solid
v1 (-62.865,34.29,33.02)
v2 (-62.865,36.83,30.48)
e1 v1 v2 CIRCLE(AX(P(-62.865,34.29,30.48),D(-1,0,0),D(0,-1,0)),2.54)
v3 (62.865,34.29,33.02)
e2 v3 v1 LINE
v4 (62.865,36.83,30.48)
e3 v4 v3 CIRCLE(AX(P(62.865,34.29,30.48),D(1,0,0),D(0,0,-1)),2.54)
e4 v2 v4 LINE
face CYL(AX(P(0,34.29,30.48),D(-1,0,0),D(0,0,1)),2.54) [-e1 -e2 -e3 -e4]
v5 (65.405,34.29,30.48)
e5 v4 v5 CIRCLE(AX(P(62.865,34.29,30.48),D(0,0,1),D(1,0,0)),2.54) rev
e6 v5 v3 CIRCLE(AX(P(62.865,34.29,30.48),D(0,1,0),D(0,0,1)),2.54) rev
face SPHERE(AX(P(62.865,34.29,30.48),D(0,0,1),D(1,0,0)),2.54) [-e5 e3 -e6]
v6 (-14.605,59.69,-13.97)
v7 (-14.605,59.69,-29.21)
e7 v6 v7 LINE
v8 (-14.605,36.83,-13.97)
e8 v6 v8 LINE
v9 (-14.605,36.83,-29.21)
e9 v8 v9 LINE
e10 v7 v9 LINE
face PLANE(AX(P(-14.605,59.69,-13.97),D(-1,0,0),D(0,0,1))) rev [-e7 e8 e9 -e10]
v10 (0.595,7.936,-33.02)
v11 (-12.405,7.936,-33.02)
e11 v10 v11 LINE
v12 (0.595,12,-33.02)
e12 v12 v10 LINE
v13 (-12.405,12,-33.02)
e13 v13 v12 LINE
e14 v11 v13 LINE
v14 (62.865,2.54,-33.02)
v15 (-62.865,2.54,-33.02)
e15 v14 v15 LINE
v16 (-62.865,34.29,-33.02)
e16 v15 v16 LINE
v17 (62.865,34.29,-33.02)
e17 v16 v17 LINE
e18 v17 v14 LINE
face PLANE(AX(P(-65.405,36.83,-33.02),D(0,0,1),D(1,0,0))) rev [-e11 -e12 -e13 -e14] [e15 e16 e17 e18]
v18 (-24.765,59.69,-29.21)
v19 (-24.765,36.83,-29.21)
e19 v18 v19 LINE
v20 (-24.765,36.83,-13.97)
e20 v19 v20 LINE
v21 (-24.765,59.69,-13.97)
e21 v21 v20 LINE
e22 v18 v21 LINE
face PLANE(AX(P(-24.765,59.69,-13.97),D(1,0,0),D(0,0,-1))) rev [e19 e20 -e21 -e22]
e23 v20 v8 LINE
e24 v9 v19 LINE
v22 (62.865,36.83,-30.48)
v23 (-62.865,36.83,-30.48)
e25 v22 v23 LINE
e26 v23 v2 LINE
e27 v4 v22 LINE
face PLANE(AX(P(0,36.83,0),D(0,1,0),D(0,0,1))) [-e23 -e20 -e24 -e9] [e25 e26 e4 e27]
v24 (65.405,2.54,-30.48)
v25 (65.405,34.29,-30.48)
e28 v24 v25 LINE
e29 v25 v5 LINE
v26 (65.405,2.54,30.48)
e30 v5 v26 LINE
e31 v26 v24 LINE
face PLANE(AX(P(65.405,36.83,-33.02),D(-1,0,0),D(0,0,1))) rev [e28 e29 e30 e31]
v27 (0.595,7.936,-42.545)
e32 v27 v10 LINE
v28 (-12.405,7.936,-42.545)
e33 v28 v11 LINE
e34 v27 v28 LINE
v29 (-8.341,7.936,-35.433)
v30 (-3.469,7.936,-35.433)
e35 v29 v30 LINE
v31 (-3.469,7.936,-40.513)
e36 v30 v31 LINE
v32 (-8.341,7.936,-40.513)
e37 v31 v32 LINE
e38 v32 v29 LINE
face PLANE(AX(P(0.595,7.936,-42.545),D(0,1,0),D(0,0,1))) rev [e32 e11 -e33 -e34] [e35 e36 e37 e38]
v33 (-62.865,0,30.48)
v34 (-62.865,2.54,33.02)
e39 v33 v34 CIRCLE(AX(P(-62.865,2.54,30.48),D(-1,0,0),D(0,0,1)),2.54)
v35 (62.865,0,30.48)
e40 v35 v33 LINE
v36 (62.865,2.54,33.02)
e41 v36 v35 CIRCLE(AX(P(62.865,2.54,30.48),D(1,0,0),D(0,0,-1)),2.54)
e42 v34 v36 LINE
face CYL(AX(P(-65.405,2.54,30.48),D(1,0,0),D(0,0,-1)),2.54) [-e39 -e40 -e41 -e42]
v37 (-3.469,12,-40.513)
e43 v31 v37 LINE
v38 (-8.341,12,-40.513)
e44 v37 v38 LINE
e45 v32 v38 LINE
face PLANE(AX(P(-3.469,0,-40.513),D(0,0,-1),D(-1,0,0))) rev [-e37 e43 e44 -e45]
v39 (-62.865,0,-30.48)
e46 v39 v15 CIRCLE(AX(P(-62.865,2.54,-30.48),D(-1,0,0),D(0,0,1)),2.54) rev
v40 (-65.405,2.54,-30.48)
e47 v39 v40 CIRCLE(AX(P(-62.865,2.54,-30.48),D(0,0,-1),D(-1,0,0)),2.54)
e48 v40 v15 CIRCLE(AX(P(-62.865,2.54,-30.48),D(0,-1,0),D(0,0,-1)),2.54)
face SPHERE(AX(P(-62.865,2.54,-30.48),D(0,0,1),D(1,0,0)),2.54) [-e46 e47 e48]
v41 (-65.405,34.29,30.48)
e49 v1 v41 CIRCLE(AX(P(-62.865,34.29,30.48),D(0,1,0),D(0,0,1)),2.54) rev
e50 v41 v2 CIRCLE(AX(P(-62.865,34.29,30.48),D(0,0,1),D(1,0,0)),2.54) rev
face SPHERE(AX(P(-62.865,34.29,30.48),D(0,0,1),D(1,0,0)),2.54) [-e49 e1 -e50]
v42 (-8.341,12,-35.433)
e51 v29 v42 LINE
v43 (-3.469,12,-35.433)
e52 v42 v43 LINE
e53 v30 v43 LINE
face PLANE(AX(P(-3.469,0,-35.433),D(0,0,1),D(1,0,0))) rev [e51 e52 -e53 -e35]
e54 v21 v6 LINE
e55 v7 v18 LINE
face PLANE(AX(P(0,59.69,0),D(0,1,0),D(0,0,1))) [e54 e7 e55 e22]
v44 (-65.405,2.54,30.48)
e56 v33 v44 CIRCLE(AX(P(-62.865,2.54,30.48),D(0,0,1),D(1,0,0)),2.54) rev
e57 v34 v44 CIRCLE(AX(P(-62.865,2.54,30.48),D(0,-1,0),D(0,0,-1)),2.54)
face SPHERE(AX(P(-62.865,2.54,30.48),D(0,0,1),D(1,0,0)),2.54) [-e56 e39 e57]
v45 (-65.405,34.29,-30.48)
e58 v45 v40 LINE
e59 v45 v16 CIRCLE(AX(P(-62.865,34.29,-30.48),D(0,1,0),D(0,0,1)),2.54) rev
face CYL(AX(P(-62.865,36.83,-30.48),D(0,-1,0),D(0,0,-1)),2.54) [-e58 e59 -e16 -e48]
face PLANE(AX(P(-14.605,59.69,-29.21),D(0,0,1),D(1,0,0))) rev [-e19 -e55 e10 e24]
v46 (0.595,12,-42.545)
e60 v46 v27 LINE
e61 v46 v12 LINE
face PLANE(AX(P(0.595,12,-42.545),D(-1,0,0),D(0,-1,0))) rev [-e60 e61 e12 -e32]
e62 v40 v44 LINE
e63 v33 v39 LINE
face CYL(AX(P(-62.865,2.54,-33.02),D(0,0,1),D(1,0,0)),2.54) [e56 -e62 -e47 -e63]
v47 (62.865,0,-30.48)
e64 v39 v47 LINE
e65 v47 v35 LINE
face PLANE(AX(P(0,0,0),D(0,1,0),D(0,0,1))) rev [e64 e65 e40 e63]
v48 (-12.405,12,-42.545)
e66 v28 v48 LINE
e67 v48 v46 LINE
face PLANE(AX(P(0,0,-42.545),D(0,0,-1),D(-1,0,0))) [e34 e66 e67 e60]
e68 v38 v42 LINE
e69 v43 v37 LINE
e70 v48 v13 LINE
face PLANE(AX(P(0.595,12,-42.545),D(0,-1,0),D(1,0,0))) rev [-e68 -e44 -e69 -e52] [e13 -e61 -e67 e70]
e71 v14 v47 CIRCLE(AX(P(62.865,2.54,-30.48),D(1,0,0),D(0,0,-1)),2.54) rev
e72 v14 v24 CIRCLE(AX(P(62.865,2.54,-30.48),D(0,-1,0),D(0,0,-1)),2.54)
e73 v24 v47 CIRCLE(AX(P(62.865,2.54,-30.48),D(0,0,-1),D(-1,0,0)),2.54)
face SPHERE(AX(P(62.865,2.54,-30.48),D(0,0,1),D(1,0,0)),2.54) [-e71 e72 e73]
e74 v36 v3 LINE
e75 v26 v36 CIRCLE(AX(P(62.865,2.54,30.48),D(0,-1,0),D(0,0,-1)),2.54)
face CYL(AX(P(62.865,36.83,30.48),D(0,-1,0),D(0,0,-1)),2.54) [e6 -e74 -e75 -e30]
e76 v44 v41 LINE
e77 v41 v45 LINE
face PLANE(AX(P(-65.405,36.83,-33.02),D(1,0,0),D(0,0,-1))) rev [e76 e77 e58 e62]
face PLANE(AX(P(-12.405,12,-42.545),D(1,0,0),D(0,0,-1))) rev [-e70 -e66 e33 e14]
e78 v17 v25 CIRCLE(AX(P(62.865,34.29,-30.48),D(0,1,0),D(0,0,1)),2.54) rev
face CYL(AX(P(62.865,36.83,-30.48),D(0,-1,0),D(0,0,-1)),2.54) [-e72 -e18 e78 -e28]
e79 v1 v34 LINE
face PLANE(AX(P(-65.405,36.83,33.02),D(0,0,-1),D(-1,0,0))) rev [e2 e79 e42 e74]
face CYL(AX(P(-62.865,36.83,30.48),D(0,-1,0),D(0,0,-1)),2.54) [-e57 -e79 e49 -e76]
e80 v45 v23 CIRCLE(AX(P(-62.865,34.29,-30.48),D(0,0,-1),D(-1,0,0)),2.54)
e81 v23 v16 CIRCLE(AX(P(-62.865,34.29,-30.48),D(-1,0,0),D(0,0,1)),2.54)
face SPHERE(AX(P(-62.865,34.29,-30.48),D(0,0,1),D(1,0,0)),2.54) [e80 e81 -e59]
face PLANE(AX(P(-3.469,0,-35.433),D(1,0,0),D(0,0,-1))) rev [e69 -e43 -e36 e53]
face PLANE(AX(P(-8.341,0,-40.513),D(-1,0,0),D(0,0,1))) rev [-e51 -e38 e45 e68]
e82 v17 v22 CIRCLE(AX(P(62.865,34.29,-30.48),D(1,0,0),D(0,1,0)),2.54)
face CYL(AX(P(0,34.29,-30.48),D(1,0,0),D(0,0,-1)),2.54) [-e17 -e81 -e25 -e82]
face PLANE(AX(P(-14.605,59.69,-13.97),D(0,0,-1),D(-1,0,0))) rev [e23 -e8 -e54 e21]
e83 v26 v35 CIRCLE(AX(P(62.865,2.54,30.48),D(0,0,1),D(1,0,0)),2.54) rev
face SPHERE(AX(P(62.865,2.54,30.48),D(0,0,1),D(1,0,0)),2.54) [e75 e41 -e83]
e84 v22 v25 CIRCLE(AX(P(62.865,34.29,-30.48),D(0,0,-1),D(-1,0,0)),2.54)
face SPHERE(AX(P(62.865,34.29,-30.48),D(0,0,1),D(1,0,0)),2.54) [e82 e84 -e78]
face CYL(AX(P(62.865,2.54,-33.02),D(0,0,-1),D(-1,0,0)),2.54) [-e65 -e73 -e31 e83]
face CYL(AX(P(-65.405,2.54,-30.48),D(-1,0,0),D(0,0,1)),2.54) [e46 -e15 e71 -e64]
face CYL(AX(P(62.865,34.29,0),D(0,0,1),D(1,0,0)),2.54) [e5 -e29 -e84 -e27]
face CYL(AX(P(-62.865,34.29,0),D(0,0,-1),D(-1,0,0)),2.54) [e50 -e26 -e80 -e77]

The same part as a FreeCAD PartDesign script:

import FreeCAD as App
import Part
import Sketcher

V = App.Vector
Q = App.Units.Quantity

doc = App.newDocument("Part")
body = doc.addObject("PartDesign::Body", "Body")

sketch1 = body.newObject("Sketcher::SketchObject", "Sketch")
sketch1.AttachmentSupport = (doc.getObject("XZ_Plane"), [""])
sketch1.MapMode = "FlatFace"
sketch1.addGeometry(Part.LineSegment(V(-65, -33, 0), V(-65, 33, 0)), False)
sketch1.addGeometry(Part.LineSegment(V(-65, 33, 0), V(65, 33, 0)), False)
sketch1.addGeometry(Part.LineSegment(V(65, 33, 0), V(65, -33, 0)), False)
sketch1.addGeometry(Part.LineSegment(V(65, -33, 0), V(-65, -33, 0)), False)
sketch1.addConstraint(Sketcher.Constraint("Coincident", 0, 2, 1, 1))
sketch1.addConstraint(Sketcher.Constraint("Coincident", 1, 2, 2, 1))
sketch1.addConstraint(Sketcher.Constraint("Coincident", 2, 2, 3, 1))
sketch1.addConstraint(Sketcher.Constraint("Coincident", 3, 2, 0, 1))
sketch1.addConstraint(Sketcher.Constraint("Vertical", 0))
sketch1.addConstraint(Sketcher.Constraint("Horizontal", 1))
sketch1.addConstraint(Sketcher.Constraint("Vertical", 2))
sketch1.addConstraint(Sketcher.Constraint("Horizontal", 3))
sketch1.addConstraint(Sketcher.Constraint("Symmetric", 0, 2, 2, 2, -1, 1))
sketch1.addConstraint(Sketcher.Constraint("DistanceY", 0, 1, 0, 2, Q("2.6 in")))
sketch1.addConstraint(Sketcher.Constraint("DistanceX", 1, 1, 1, 2, Q("5.15 in")))
pad1 = body.newObject("PartDesign::Pad", "Pad")
pad1.Profile = sketch1
pad1.Length = Q("1.45 in")
pad1.Reversed = True
doc.recompute()

fillet = body.newObject("PartDesign::Fillet", "Fillet")
fillet.Base = (pad1, ["Edge1"])
fillet.UseAllEdges = True
fillet.Radius = Q("0.1 in")

sketch2 = body.newObject("Sketcher::SketchObject", "Sketch001")
sketch2.AttachmentSupport = (doc.getObject("XZ_Plane"), [""])
sketch2.MapMode = "FlatFace"
sketch2.AttachmentOffset = App.Placement(V(0, 0, -1.45 * 25.4), App.Rotation())
sketch2.addGeometry(Part.LineSegment(V(-25, -29, 0), V(-25, -14, 0)), False)
sketch2.addGeometry(Part.LineSegment(V(-25, -14, 0), V(-15, -14, 0)), False)
sketch2.addGeometry(Part.LineSegment(V(-15, -14, 0), V(-15, -29, 0)), False)
sketch2.addGeometry(Part.LineSegment(V(-15, -29, 0), V(-25, -29, 0)), False)
sketch2.addConstraint(Sketcher.Constraint("Coincident", 0, 2, 1, 1))
sketch2.addConstraint(Sketcher.Constraint("Coincident", 1, 2, 2, 1))
sketch2.addConstraint(Sketcher.Constraint("Coincident", 2, 2, 3, 1))
sketch2.addConstraint(Sketcher.Constraint("Coincident", 3, 2, 0, 1))
sketch2.addConstraint(Sketcher.Constraint("Vertical", 0))
sketch2.addConstraint(Sketcher.Constraint("Horizontal", 1))
sketch2.addConstraint(Sketcher.Constraint("Vertical", 2))
sketch2.addConstraint(Sketcher.Constraint("Horizontal", 3))
sketch2.addConstraint(Sketcher.Constraint("DistanceX", 1, 1, 1, 2, Q("0.4 in")))
sketch2.addConstraint(Sketcher.Constraint("DistanceY", 0, 1, 0, 2, Q("0.6 in")))
sketch2.addConstraint(Sketcher.Constraint("DistanceY", 0, 2, -1, 1, Q("0.55 in")))
sketch2.addConstraint(Sketcher.Constraint("DistanceX", 0, 2, -1, 1, Q("0.975 in")))
pad2 = body.newObject("PartDesign::Pad", "Pad001")
pad2.Profile = sketch2
pad2.Length = Q("0.9 in")
pad2.Reversed = True

sketch3 = body.newObject("Sketcher::SketchObject", "Sketch002")
sketch3.AttachmentSupport = (doc.getObject("XY_Plane"), [""])
sketch3.MapMode = "FlatFace"
sketch3.AttachmentOffset = App.Placement(V(0, 0, -1.3 * 25.4), App.Rotation())
sketch3.addGeometry(Part.LineSegment(V(0.6, 12, 0), V(0.6, 7.9, 0)), False)
sketch3.addGeometry(Part.LineSegment(V(0.6, 7.9, 0), V(-12.4, 7.9, 0)), False)
sketch3.addGeometry(Part.LineSegment(V(-12.4, 7.9, 0), V(-12.4, 12, 0)), False)
sketch3.addGeometry(Part.LineSegment(V(-12.4, 12, 0), V(0.6, 12, 0)), False)
sketch3.addConstraint(Sketcher.Constraint("Coincident", 0, 2, 1, 1))
sketch3.addConstraint(Sketcher.Constraint("Coincident", 1, 2, 2, 1))
sketch3.addConstraint(Sketcher.Constraint("Coincident", 2, 2, 3, 1))
sketch3.addConstraint(Sketcher.Constraint("Coincident", 3, 2, 0, 1))
sketch3.addConstraint(Sketcher.Constraint("Vertical", 0))
sketch3.addConstraint(Sketcher.Constraint("Horizontal", 1))
sketch3.addConstraint(Sketcher.Constraint("Vertical", 2))
sketch3.addConstraint(Sketcher.Constraint("Horizontal", 3))
sketch3.addConstraint(Sketcher.Constraint("DistanceY", 0, 2, 0, 1, Q("0.16 in")))
sketch3.addConstraint(Sketcher.Constraint("DistanceX", 1, 2, 1, 1, 13.0))
sketch3.addConstraint(Sketcher.Constraint("DistanceX", -1, 1, 0, 2, 0.595))
sketch3.addConstraint(Sketcher.Constraint("DistanceY", -1, 1, 0, 2, 7.936))
pad3 = body.newObject("PartDesign::Pad", "Pad002")
pad3.Profile = sketch3
pad3.Length = Q("0.375 in")
pad3.Reversed = True

sketch4 = body.newObject("Sketcher::SketchObject", "Sketch003")
sketch4.AttachmentSupport = (doc.getObject("XZ_Plane"), [""])
sketch4.MapMode = "FlatFace"
sketch4.AttachmentOffset = App.Placement(V(0, 0, -12), App.Rotation())
sketch4.addGeometry(Part.LineSegment(V(-8.3, -40.5, 0), V(-8.3, -35.4, 0)), False)
sketch4.addGeometry(Part.LineSegment(V(-8.3, -35.4, 0), V(-3.5, -35.4, 0)), False)
sketch4.addGeometry(Part.LineSegment(V(-3.5, -35.4, 0), V(-3.5, -40.5, 0)), False)
sketch4.addGeometry(Part.LineSegment(V(-3.5, -40.5, 0), V(-8.3, -40.5, 0)), False)
sketch4.addConstraint(Sketcher.Constraint("Coincident", 0, 2, 1, 1))
sketch4.addConstraint(Sketcher.Constraint("Coincident", 1, 2, 2, 1))
sketch4.addConstraint(Sketcher.Constraint("Coincident", 2, 2, 3, 1))
sketch4.addConstraint(Sketcher.Constraint("Coincident", 3, 2, 0, 1))
sketch4.addConstraint(Sketcher.Constraint("Vertical", 0))
sketch4.addConstraint(Sketcher.Constraint("Horizontal", 1))
sketch4.addConstraint(Sketcher.Constraint("Vertical", 2))
sketch4.addConstraint(Sketcher.Constraint("Horizontal", 3))
sketch4.addConstraint(Sketcher.Constraint("DistanceY", 0, 1, 0, 2, Q("0.2 in")))
sketch4.addConstraint(Sketcher.Constraint("DistanceY", 0, 2, -1, 1, Q("1.395 in")))
sketch4.addConstraint(Sketcher.Constraint("DistanceX", 1, 1, 1, 2, 4.872))
sketch4.addConstraint(Sketcher.Constraint("DistanceX", 0, 2, -1, 1, 8.341))
pocket1 = body.newObject("PartDesign::Pocket", "Pocket")
pocket1.Profile = sketch4
pocket1.Type = "ThroughAll"
pocket1.Reversed = True

doc.recompute()
